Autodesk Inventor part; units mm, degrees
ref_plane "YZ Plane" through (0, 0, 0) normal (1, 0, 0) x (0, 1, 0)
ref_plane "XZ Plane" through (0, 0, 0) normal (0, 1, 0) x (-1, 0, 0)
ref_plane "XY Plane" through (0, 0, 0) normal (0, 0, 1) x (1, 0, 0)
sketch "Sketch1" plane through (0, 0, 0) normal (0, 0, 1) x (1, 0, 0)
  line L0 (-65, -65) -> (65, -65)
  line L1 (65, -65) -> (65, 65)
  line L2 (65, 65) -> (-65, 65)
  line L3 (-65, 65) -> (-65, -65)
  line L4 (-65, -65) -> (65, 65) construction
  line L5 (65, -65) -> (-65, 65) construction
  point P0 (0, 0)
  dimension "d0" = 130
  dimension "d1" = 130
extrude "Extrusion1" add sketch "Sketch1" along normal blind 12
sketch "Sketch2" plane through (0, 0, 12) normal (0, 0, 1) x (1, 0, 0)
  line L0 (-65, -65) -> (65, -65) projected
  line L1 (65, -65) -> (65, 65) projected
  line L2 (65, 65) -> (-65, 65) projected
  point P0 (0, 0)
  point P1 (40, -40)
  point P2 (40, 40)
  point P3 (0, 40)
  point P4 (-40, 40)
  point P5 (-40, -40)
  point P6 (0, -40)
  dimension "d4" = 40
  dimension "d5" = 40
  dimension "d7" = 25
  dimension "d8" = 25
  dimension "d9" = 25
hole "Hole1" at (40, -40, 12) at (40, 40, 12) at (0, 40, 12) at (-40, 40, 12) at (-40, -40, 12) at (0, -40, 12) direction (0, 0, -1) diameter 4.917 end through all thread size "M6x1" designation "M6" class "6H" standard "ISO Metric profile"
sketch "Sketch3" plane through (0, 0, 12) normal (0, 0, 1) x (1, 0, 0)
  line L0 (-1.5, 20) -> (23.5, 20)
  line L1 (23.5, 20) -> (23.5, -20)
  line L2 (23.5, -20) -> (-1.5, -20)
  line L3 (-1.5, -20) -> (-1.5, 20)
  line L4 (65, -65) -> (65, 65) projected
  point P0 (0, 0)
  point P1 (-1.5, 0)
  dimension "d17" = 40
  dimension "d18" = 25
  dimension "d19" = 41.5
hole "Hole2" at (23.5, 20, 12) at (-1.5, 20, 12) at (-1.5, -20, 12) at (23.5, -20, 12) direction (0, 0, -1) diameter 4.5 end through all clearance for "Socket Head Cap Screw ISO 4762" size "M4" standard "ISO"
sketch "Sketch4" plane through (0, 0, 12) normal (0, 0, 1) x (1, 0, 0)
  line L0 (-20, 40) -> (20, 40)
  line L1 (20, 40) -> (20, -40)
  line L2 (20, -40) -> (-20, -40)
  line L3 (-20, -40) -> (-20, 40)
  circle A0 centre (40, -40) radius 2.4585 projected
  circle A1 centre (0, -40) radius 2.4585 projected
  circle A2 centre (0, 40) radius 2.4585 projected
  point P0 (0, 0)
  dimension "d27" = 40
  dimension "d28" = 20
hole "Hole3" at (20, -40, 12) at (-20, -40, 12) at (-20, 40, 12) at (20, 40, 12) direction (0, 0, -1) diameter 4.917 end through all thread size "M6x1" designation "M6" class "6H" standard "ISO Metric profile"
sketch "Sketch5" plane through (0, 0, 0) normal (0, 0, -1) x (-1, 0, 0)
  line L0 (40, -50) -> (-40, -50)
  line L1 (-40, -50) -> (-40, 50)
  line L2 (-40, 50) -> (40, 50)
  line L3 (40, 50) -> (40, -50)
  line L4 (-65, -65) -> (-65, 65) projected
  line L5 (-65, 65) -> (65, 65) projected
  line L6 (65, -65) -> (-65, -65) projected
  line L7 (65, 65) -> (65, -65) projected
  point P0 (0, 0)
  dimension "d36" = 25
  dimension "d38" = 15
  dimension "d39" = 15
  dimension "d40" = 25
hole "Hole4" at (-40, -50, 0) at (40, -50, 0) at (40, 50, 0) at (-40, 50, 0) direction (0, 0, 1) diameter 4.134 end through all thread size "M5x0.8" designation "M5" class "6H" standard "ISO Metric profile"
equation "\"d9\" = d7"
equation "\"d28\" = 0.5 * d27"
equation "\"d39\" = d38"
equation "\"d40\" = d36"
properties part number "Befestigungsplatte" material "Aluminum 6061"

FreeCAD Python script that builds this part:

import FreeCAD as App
import Part
import Sketcher

V = App.Vector
Q = App.Units.Quantity


def add_polygon(sketch, points):
    """Adds a closed chain of lines whose ends are joined by coincident constraints."""
    first, n = sketch.GeometryCount, len(points)
    for a, b in zip(points, points[1:] + points[:1]):
        sketch.addGeometry(Part.LineSegment(App.Vector(*a, 0), App.Vector(*b, 0)), False)
    for i in range(n):
        sketch.addConstraint(Sketcher.Constraint("Coincident", first + i, 2, first + (i + 1) % n, 1))

doc = App.newDocument("Part")
body = doc.addObject("PartDesign::Body", "Body")

sketch1 = body.newObject("Sketcher::SketchObject", "Sketch")
sketch1.AttachmentSupport = (doc.getObject("XY_Plane"), [""])
sketch1.MapMode = "FlatFace"
add_polygon(sketch1, [(-65, 65), (-65, -65), (65, -65), (65, 65)])
sketch1.addConstraint([
    Sketcher.Constraint("Vertical", 0),
    Sketcher.Constraint("Horizontal", 1),
    Sketcher.Constraint("Vertical", 2),
    Sketcher.Constraint("Horizontal", 3),
    Sketcher.Constraint("Symmetric", 0, 2, 2, 2, -1, 1),
    Sketcher.Constraint("Equal", 3, 0),
    Sketcher.Constraint("DistanceX", 1, 1, 1, 2, Q("130 mm")),
])
pad1 = body.newObject("PartDesign::Pad", "Pad")
pad1.Profile = sketch1
pad1.Length = 12

sketch2 = body.newObject("Sketcher::SketchObject", "Sketch001")
sketch2.AttachmentSupport = (doc.getObject("XY_Plane"), [""])
sketch2.MapMode = "FlatFace"
sketch2.AttachmentOffset = App.Placement(V(0, 0, 12), App.Rotation())
sketch2.addGeometry([
    Part.Circle(V(40, -40, 0), V(0, 0, 1), 2.5),
    Part.Circle(V(40, 40, 0), V(0, 0, 1), 2.5),
    Part.Circle(V(0, 40, 0), V(0, 0, 1), 2.5),
    Part.Circle(V(-40, 40, 0), V(0, 0, 1), 2.5),
    Part.Circle(V(-40, -40, 0), V(0, 0, 1), 2.5),
    Part.Circle(V(0, -40, 0), V(0, 0, 1), 2.5),
], False)
sketch2.addConstraint([
    Sketcher.Constraint("Equal", 0, 1),
    Sketcher.Constraint("Equal", 1, 2),
    Sketcher.Constraint("Equal", 2, 3),
    Sketcher.Constraint("Equal", 3, 4),
    Sketcher.Constraint("Equal", 4, 5),
    Sketcher.Constraint("Symmetric", 0, 3, 3, 3, -1, 1),
    Sketcher.Constraint("Symmetric", 1, 3, 4, 3, -1, 1),
    Sketcher.Constraint("Symmetric", 2, 3, 5, 3, -1, 1),
    Sketcher.Constraint("Symmetric", 1, 3, 3, 3, -2),
    Sketcher.Constraint("PointOnObject", 2, 3, -2),
    Sketcher.Constraint("Horizontal", 1, 3, 2, 3),
    Sketcher.Constraint("Diameter", 0, Q("4.917 mm")),
    Sketcher.Constraint("DistanceX", -1, 1, 0, 3, Q("40 mm")),
    Sketcher.Constraint("DistanceY", 0, 3, -1, 1, Q("40 mm")),
])
doc.recompute()
hole = body.newObject("PartDesign::Hole", "Hole")
hole.Profile = sketch2
hole.ThreadType = "None"
hole.Diameter = 4.917
hole.DepthType = "ThroughAll"

sketch3 = body.newObject("Sketcher::SketchObject", "Sketch002")
sketch3.AttachmentSupport = (doc.getObject("XY_Plane"), [""])
sketch3.MapMode = "FlatFace"
sketch3.AttachmentOffset = App.Placement(V(0, 0, 12), App.Rotation())
sketch3.addGeometry([
    Part.Circle(V(23.5, 20, 0), V(0, 0, 1), 2.2),
    Part.Circle(V(-1.5, 20, 0), V(0, 0, 1), 2.2),
    Part.Circle(V(-1.5, -20, 0), V(0, 0, 1), 2.2),
    Part.Circle(V(23.5, -20, 0), V(0, 0, 1), 2.2),
], False)
sketch3.addConstraint([
    Sketcher.Constraint("Equal", 0, 1),
    Sketcher.Constraint("Equal", 1, 2),
    Sketcher.Constraint("Equal", 2, 3),
    Sketcher.Constraint("Symmetric", 1, 3, 2, 3, -1),
    Sketcher.Constraint("Symmetric", 0, 3, 3, 3, -1),
    Sketcher.Constraint("Horizontal", 0, 3, 1, 3),
    Sketcher.Constraint("Diameter", 0, Q("4.5 mm")),
    Sketcher.Constraint("DistanceY", -1, 1, 0, 3, Q("20 mm")),
    Sketcher.Constraint("DistanceX", 1, 3, 0, 3, Q("25 mm")),
    Sketcher.Constraint("DistanceX", -1, 1, 0, 3, Q("23.5 mm")),
])
doc.recompute()
hole2 = body.newObject("PartDesign::Hole", "Hole001")
hole2.Profile = sketch3
hole2.ThreadType = "None"
hole2.Diameter = 4.5
hole2.DepthType = "ThroughAll"

sketch4 = body.newObject("Sketcher::SketchObject", "Sketch003")
sketch4.AttachmentSupport = (doc.getObject("XY_Plane"), [""])
sketch4.MapMode = "FlatFace"
sketch4.AttachmentOffset = App.Placement(V(0, 0, 12), App.Rotation())
sketch4.addGeometry([
    Part.Circle(V(20, -40, 0), V(0, 0, 1), 2.5),
    Part.Circle(V(-20, -40, 0), V(0, 0, 1), 2.5),
    Part.Circle(V(-20, 40, 0), V(0, 0, 1), 2.5),
    Part.Circle(V(20, 40, 0), V(0, 0, 1), 2.5),
], False)
sketch4.addConstraint([
    Sketcher.Constraint("Equal", 0, 1),
    Sketcher.Constraint("Equal", 1, 2),
    Sketcher.Constraint("Equal", 2, 3),
    Sketcher.Constraint("Symmetric", 0, 3, 2, 3, -1, 1),
    Sketcher.Constraint("Symmetric", 1, 3, 3, 3, -1, 1),
    Sketcher.Constraint("Symmetric", 0, 3, 1, 3, -2),
    Sketcher.Constraint("Diameter", 0, Q("4.917 mm")),
    Sketcher.Constraint("DistanceX", -1, 1, 0, 3, Q("20 mm")),
    Sketcher.Constraint("DistanceY", 0, 3, -1, 1, Q("40 mm")),
])
doc.recompute()
hole3 = body.newObject("PartDesign::Hole", "Hole002")
hole3.Profile = sketch4
hole3.ThreadType = "None"
hole3.Diameter = 4.917
hole3.DepthType = "ThroughAll"

sketch5 = body.newObject("Sketcher::SketchObject", "Sketch004")
sketch5.AttachmentSupport = (doc.getObject("XY_Plane"), [""])
sketch5.MapMode = "FlatFace"
sketch5.addGeometry([
    Part.Circle(V(-40, -50, 0), V(0, 0, 1), 2.1),
    Part.Circle(V(40, -50, 0), V(0, 0, 1), 2.1),
    Part.Circle(V(40, 50, 0), V(0, 0, 1), 2.1),
    Part.Circle(V(-40, 50, 0), V(0, 0, 1), 2.1),
], False)
sketch5.addConstraint([
    Sketcher.Constraint("Equal", 0, 1),
    Sketcher.Constraint("Equal", 1, 2),
    Sketcher.Constraint("Equal", 2, 3),
    Sketcher.Constraint("Symmetric", 0, 3, 2, 3, -1, 1),
    Sketcher.Constraint("Symmetric", 1, 3, 3, 3, -1, 1),
    Sketcher.Constraint("Symmetric", 0, 3, 1, 3, -2),
    Sketcher.Constraint("Diameter", 0, Q("4.134 mm")),
    Sketcher.Constraint("DistanceX", 0, 3, -1, 1, Q("40 mm")),
    Sketcher.Constraint("DistanceY", 0, 3, -1, 1, Q("50 mm")),
])
doc.recompute()
hole4 = body.newObject("PartDesign::Hole", "Hole003")
hole4.Profile = sketch5
hole4.ThreadType = "None"
hole4.Diameter = 4.134
hole4.DepthType = "ThroughAll"
hole4.Reversed = True

doc.recompute()
